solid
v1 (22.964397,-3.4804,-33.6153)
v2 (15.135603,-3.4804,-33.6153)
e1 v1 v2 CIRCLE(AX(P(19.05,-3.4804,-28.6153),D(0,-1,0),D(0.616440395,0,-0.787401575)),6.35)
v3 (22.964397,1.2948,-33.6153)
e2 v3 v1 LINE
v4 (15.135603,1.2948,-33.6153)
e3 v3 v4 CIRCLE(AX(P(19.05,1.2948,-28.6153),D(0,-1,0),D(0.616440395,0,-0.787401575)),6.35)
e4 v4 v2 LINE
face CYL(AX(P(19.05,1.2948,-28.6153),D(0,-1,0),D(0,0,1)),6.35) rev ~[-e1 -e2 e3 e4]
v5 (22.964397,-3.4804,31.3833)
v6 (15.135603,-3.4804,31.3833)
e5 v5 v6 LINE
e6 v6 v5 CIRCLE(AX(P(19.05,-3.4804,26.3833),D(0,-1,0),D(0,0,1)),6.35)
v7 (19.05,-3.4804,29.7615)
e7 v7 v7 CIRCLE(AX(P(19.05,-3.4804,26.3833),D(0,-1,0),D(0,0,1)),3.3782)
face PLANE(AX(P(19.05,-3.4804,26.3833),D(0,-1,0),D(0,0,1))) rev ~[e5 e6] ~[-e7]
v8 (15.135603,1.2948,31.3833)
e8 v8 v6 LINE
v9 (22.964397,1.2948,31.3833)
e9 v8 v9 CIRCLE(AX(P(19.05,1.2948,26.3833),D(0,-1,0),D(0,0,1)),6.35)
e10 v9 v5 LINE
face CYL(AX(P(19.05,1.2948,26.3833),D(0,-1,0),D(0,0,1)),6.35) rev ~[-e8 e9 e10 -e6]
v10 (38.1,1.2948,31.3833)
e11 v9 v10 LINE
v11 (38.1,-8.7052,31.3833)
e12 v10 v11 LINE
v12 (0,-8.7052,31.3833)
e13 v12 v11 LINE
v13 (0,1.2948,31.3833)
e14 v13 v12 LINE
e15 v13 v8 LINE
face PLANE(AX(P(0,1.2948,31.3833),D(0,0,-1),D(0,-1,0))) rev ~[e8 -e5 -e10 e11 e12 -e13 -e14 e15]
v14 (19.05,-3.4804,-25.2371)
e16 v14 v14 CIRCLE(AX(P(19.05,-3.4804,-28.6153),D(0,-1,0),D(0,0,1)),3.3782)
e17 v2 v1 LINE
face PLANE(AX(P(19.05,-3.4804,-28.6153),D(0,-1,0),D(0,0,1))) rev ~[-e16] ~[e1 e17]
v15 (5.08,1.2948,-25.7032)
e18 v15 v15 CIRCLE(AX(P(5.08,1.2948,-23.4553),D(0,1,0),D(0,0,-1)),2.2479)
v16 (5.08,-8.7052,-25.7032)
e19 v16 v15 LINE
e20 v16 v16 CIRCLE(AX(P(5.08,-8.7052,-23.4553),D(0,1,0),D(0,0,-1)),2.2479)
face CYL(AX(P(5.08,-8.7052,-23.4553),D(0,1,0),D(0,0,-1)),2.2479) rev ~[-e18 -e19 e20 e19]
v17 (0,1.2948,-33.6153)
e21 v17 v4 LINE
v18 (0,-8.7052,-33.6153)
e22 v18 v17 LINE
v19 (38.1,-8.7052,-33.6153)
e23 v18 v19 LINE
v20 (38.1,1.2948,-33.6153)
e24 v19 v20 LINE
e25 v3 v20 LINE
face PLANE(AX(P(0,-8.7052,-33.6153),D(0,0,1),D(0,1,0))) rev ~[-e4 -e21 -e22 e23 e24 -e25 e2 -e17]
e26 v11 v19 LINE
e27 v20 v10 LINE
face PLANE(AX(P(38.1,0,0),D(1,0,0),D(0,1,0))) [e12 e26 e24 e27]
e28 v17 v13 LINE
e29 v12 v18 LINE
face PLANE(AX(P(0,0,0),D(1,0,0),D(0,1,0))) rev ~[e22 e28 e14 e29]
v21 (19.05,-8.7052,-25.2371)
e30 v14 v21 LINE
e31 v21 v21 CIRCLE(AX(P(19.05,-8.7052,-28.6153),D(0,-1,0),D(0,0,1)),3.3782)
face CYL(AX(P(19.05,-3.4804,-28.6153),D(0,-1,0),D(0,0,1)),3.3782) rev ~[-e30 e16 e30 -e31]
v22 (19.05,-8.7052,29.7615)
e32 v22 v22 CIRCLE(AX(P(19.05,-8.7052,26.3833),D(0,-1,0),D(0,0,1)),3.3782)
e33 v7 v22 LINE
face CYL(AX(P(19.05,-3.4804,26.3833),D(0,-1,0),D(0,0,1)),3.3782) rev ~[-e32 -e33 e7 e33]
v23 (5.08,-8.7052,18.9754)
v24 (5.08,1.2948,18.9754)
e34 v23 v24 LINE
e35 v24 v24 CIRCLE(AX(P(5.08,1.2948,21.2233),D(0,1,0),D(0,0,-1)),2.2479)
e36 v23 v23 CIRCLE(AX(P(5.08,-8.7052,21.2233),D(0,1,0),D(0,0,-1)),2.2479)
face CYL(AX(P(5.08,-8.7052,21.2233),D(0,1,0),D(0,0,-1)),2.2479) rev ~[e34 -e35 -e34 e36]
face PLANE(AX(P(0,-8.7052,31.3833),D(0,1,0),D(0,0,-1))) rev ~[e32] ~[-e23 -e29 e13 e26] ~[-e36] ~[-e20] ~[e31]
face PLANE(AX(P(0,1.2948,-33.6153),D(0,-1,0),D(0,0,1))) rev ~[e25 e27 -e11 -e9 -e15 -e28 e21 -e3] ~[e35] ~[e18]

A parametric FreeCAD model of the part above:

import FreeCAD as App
import Part
import Sketcher
from FreeCAD import Vector
Q = App.Units.Quantity

doc = App.newDocument("Part")
body = doc.addObject("PartDesign::Body", "Body")

# Sketch on YZ plane
sketch1 = body.newObject("Sketcher::SketchObject", "Sketch")
sketch1.AttachmentSupport = (doc.getObject("YZ_Plane"), [""])
sketch1.MapMode = "FlatFace"
sketch1.addGeometry(Part.LineSegment(Vector(1, -34, 0), Vector(1, 31, 0)), False)
sketch1.addGeometry(Part.LineSegment(Vector(1, 31, 0), Vector(-9, 31, 0)), False)
sketch1.addGeometry(Part.LineSegment(Vector(-9, 31, 0), Vector(-9, -34, 0)), False)
sketch1.addGeometry(Part.LineSegment(Vector(-9, -34, 0), Vector(1, -34, 0)), False)
sketch1.addConstraint(Sketcher.Constraint("Coincident", 0, 2, 1, 1))
sketch1.addConstraint(Sketcher.Constraint("Coincident", 1, 2, 2, 1))
sketch1.addConstraint(Sketcher.Constraint("Coincident", 2, 2, 3, 1))
sketch1.addConstraint(Sketcher.Constraint("Coincident", 3, 2, 0, 1))
sketch1.addConstraint(Sketcher.Constraint("Vertical", 0))
sketch1.addConstraint(Sketcher.Constraint("Horizontal", 1))
sketch1.addConstraint(Sketcher.Constraint("Vertical", 2))
sketch1.addConstraint(Sketcher.Constraint("Horizontal", 3))
sketch1.addConstraint(Sketcher.Constraint("DistanceY", 0, 1, 0, 2, Q("2.559 in")))
sketch1.addConstraint(Sketcher.Constraint("DistanceX", 1, 2, 1, 1, Q("0.3937 in")))
sketch1.addConstraint(Sketcher.Constraint("DistanceX", -1, 1, 0, 2, Q("1.2948 mm")))
sketch1.addConstraint(Sketcher.Constraint("DistanceY", -1, 1, 0, 2, Q("31.3833 mm")))
pad1 = body.newObject("PartDesign::Pad", "Pad")
pad1.Profile = sketch1
pad1.Length = Q("1.5 in")

# Sketch on XZ plane
sketch2 = body.newObject("Sketcher::SketchObject", "Sketch001")
sketch2.AttachmentSupport = (doc.getObject("XZ_Plane"), [""])
sketch2.MapMode = "FlatFace"
sketch2.AttachmentOffset = App.Placement(Vector(0, 0, -1.2948), App.Rotation())
sketch2.addGeometry(Part.Circle(Vector(19.1, 26.4, 0), Vector(0, 0, 1), 3.4), False)
sketch2.addGeometry(Part.Circle(Vector(19.1, -28.6, 0), Vector(0, 0, 1), 3.4), False)
sketch2.addConstraint(Sketcher.Constraint("Equal", 0, 1))
sketch2.addConstraint(Sketcher.Constraint("Vertical", 0, 3, 1, 3))
sketch2.addConstraint(Sketcher.Constraint("Diameter", 0, Q("0.266 in")))
sketch2.addConstraint(Sketcher.Constraint("DistanceX", -1, 1, 0, 3, Q("0.75 in")))
sketch2.addConstraint(Sketcher.Constraint("DistanceY", 1, 3, 0, 3, Q("2.1653 in")))
sketch2.addConstraint(Sketcher.Constraint("DistanceY", -1, 1, 0, 3, Q("26.3833 mm")))
doc.recompute()
hole = body.newObject("PartDesign::Hole", "Hole")
hole.Profile = sketch2
hole.ThreadType = "None"
hole.Diameter = Q("0.266 in")
hole.DepthType = "ThroughAll"
hole.HoleCutType = "Counterbore"
hole.HoleCutDiameter = Q("0.5 in")
hole.HoleCutDepth = Q("0.188 in")
hole.Reversed = True

# Sketch on XZ plane
sketch3 = body.newObject("Sketcher::SketchObject", "Sketch002")
sketch3.AttachmentSupport = (doc.getObject("XZ_Plane"), [""])
sketch3.MapMode = "FlatFace"
sketch3.AttachmentOffset = App.Placement(Vector(0, 0, 8.7052), App.Rotation())
sketch3.addGeometry(Part.Circle(Vector(5.1, 21.2, 0), Vector(0, 0, 1), 2.2), False)
sketch3.addGeometry(Part.Circle(Vector(5.1, -23.5, 0), Vector(0, 0, 1), 2.2), False)
sketch3.addConstraint(Sketcher.Constraint("Equal", 0, 1))
sketch3.addConstraint(Sketcher.Constraint("Vertical", 0, 3, 1, 3))
sketch3.addConstraint(Sketcher.Constraint("Diameter", 0, Q("0.177 in")))
sketch3.addConstraint(Sketcher.Constraint("DistanceX", -1, 1, 0, 3, Q("0.2 in")))
sketch3.addConstraint(Sketcher.Constraint("DistanceY", 1, 3, 0, 3, Q("1.759 in")))
sketch3.addConstraint(Sketcher.Constraint("DistanceY", -1, 1, 0, 3, Q("21.2233 mm")))
doc.recompute()
hole2 = body.newObject("PartDesign::Hole", "Hole001")
hole2.Profile = sketch3
hole2.ThreadType = "None"
hole2.Diameter = Q("0.177 in")
hole2.DepthType = "ThroughAll"

doc.recompute()
